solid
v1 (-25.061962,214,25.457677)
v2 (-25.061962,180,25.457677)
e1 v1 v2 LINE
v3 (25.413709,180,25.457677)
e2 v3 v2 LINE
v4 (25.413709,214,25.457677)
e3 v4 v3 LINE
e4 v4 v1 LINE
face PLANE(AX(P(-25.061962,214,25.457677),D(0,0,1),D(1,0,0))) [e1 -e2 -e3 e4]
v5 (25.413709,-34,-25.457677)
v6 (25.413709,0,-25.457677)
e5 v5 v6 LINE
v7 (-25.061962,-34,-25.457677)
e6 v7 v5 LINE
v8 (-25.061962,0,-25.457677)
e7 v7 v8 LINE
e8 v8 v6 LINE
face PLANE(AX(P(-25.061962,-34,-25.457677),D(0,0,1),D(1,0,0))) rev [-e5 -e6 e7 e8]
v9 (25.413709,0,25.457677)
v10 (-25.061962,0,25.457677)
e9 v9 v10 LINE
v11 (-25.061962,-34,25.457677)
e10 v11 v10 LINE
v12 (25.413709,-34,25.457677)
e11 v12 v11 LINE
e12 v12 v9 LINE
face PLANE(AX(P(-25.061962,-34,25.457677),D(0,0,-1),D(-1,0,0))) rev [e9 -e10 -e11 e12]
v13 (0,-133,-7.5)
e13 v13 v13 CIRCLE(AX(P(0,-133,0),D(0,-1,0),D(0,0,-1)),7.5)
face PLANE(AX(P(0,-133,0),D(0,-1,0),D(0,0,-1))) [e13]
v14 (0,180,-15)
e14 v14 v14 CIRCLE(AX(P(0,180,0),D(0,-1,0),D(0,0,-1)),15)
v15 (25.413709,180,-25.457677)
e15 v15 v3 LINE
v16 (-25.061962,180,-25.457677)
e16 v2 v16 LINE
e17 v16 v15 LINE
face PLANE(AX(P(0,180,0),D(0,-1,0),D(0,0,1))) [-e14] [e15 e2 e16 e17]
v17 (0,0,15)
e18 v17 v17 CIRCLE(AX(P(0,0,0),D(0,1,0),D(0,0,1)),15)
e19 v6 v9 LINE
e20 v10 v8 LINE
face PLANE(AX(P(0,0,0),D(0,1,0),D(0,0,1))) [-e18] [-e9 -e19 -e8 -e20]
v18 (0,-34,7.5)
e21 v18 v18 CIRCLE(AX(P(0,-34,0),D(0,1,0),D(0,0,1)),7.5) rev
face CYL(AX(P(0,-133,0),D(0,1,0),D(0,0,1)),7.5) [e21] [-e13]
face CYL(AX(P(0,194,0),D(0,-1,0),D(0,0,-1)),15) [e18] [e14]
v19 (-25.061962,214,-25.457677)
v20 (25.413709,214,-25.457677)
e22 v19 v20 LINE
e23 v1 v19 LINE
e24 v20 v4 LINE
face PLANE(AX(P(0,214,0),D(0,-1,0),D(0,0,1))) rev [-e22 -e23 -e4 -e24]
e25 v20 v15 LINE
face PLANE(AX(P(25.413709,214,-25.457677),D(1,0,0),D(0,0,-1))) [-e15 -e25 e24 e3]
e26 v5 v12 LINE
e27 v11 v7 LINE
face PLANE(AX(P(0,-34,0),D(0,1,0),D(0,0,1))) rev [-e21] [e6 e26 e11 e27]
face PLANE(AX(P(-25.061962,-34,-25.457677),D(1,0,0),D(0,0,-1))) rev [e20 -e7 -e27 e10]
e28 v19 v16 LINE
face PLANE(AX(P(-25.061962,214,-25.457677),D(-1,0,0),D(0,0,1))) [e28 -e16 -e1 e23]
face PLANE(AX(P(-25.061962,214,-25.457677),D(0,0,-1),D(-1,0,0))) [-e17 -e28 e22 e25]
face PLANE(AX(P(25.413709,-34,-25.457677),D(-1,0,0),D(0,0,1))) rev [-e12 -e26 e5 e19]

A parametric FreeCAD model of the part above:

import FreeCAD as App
import Part
import Sketcher
Q = App.Units.Quantity

doc = App.newDocument("Part")
body = doc.addObject("PartDesign::Body", "Body")

sketch1 = body.newObject("Sketcher::SketchObject", "Sketch")
sketch1.AttachmentSupport = (doc.getObject("XZ_Plane"), [""])
sketch1.MapMode = "FlatFace"
sketch1.addGeometry(Part.Circle(App.Vector(0, 0, 0), App.Vector(0, 0, 1), 15), False)
sketch1.addConstraint(Sketcher.Constraint("Coincident", 0, 3, -1, 1))
sketch1.addConstraint(Sketcher.Constraint("Diameter", 0, Q("30 mm")))
pad1 = body.newObject("PartDesign::Pad", "Pad")
pad1.Profile = sketch1
pad1.Length = 194
pad1.Reversed = True

sketch2 = body.newObject("Sketcher::SketchObject", "Sketch001")
sketch2.AttachmentSupport = (doc.getObject("XZ_Plane"), [""])
sketch2.MapMode = "FlatFace"
sketch2.addGeometry(Part.LineSegment(App.Vector(-25.061962, 25.457677, 0), App.Vector(-25.061962, -25.457677, 0)), False)
sketch2.addGeometry(Part.LineSegment(App.Vector(-25.061962, -25.457677, 0), App.Vector(25.413709, -25.457677, 0)), False)
sketch2.addGeometry(Part.LineSegment(App.Vector(25.413709, -25.457677, 0), App.Vector(25.413709, 25.457677, 0)), False)
sketch2.addGeometry(Part.LineSegment(App.Vector(25.413709, 25.457677, 0), App.Vector(-25.061962, 25.457677, 0)), False)
sketch2.addConstraint(Sketcher.Constraint("Coincident", 0, 2, 1, 1))
sketch2.addConstraint(Sketcher.Constraint("Coincident", 1, 2, 2, 1))
sketch2.addConstraint(Sketcher.Constraint("Coincident", 2, 2, 3, 1))
sketch2.addConstraint(Sketcher.Constraint("Coincident", 3, 2, 0, 1))
sketch2.addConstraint(Sketcher.Constraint("Vertical", 0))
sketch2.addConstraint(Sketcher.Constraint("Horizontal", 1))
sketch2.addConstraint(Sketcher.Constraint("Vertical", 2))
sketch2.addConstraint(Sketcher.Constraint("Horizontal", 3))
sketch2.addConstraint(Sketcher.Constraint("DistanceX", 1, 1, 1, 2, Q("50.475671 mm")))
sketch2.addConstraint(Sketcher.Constraint("DistanceY", 0, 2, 0, 1, Q("50.915355 mm")))
sketch2.addConstraint(Sketcher.Constraint("DistanceX", -1, 1, 1, 2, Q("25.413709 mm")))
sketch2.addConstraint(Sketcher.Constraint("DistanceY", 0, 2, -1, 1, Q("25.457677 mm")))
pad2 = body.newObject("PartDesign::Pad", "Pad001")
pad2.Profile = sketch2
pad2.Length = 34
doc.recompute()

datumplane = body.newObject("PartDesign::Plane", "DatumPlane")
datumplane.AttachmentSupport = (doc.getObject("XZ_Plane"), [""])
datumplane.MapMode = "FlatFace"
datumplane.AttachmentOffset = App.Placement(App.Vector(0, 0, -90), App.Rotation())
mirrored = body.newObject("PartDesign::Mirrored", "Mirrored")
mirrored.Originals = [pad2]
mirrored.MirrorPlane = (datumplane, [""])
body.Tip = mirrored

sketch3 = body.newObject("Sketcher::SketchObject", "Sketch002")
sketch3.AttachmentSupport = (doc.getObject("XZ_Plane"), [""])
sketch3.MapMode = "FlatFace"
sketch3.AttachmentOffset = App.Placement(App.Vector(0, 0, 34), App.Rotation())
sketch3.addGeometry(Part.Circle(App.Vector(0, 0, 0), App.Vector(0, 0, 1), 7.5), False)
sketch3.addConstraint(Sketcher.Constraint("Coincident", 0, 3, -1, 1))
sketch3.addConstraint(Sketcher.Constraint("Diameter", 0, Q("15 mm")))
pad3 = body.newObject("PartDesign::Pad", "Pad002")
pad3.Profile = sketch3
pad3.Length = 99

doc.recompute()
